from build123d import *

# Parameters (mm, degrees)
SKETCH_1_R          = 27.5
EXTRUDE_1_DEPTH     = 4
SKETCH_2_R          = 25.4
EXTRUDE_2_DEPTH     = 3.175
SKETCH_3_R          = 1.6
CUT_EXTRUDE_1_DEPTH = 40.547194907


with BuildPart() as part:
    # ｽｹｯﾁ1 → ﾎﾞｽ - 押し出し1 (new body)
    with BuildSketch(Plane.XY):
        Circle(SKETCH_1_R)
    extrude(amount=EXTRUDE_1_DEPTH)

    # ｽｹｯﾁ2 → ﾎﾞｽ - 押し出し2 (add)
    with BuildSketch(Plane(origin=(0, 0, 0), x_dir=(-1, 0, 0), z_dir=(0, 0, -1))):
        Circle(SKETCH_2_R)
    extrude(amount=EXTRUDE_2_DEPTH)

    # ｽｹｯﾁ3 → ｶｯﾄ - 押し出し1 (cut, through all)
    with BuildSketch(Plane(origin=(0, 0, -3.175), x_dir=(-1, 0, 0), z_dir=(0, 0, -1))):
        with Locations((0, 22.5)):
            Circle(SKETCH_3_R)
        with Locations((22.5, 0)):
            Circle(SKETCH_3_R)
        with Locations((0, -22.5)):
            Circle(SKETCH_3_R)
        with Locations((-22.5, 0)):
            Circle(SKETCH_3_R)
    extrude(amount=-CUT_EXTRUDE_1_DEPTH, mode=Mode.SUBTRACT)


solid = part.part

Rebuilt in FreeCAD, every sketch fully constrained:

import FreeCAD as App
import Part
import Sketcher
Q = App.Units.Quantity

doc = App.newDocument("Part")
params = doc.addObject("Spreadsheet::Sheet", "Params")
for row, (alias, value) in enumerate([
    ("sketch1_diameter", "55 mm"),
    ("pad1_length", "4 mm"),
    ("sketch2_diameter", "50.8 mm"),
    ("pad2_length", "3.175 mm"),
    ("sketch3_diameter", "3.2 mm"),
], start=1):
    params.set(f"A{row}", alias)
    params.set(f"B{row}", "=" + value)
    params.setAlias(f"B{row}", alias)

body = doc.addObject("PartDesign::Body", "Body")

# Sketch on XY plane
sketch1 = doc.addObject("Sketcher::SketchObject", "Sketch")
body.addObject(sketch1)
sketch1.AttachmentSupport = (doc.XY_Plane, [""])
sketch1.MapMode = "FlatFace"
sketch1.addGeometry(Part.Circle(App.Vector(0, 0, 0), App.Vector(0, 0, 1), 27.5), False)
sketch1.addConstraint(Sketcher.Constraint("Coincident", 0, 3, -1, 1))
sketch1.addConstraint(Sketcher.Constraint("Diameter", 0, Q("55 mm")))
sketch1.setExpression("Constraints[1]", "Params.sketch1_diameter")
pad1 = doc.addObject("PartDesign::Pad", "Pad")
body.addObject(pad1)
pad1.Profile = sketch1
pad1.setExpression("Length", "Params.pad1_length")

# Sketch on XY plane
sketch2 = doc.addObject("Sketcher::SketchObject", "Sketch001")
body.addObject(sketch2)
sketch2.AttachmentSupport = (doc.XY_Plane, [""])
sketch2.MapMode = "FlatFace"
sketch2.addGeometry(Part.Circle(App.Vector(0, 0, 0), App.Vector(0, 0, 1), 25.4), False)
sketch2.addConstraint(Sketcher.Constraint("Coincident", 0, 3, -1, 1))
sketch2.addConstraint(Sketcher.Constraint("Diameter", 0, Q("50.8 mm")))
sketch2.setExpression("Constraints[1]", "Params.sketch2_diameter")
pad2 = doc.addObject("PartDesign::Pad", "Pad001")
body.addObject(pad2)
pad2.Profile = sketch2
pad2.setExpression("Length", "Params.pad2_length")
pad2.Reversed = True

# Sketch on XY plane
sketch3 = doc.addObject("Sketcher::SketchObject", "Sketch002")
body.addObject(sketch3)
sketch3.AttachmentSupport = (doc.XY_Plane, [""])
sketch3.MapMode = "FlatFace"
sketch3.AttachmentOffset = App.Placement(App.Vector(0, 0, -3.175), App.Rotation())
sketch3.addGeometry(Part.Circle(App.Vector(0, 22.5, 0), App.Vector(0, 0, 1), 1.6), False)
sketch3.addGeometry(Part.Circle(App.Vector(-22.5, 0, 0), App.Vector(0, 0, 1), 1.6), False)
sketch3.addGeometry(Part.Circle(App.Vector(0, -22.5, 0), App.Vector(0, 0, 1), 1.6), False)
sketch3.addGeometry(Part.Circle(App.Vector(22.5, 0, 0), App.Vector(0, 0, 1), 1.6), False)
sketch3.addConstraint(Sketcher.Constraint("Equal", 0, 1))
sketch3.addConstraint(Sketcher.Constraint("Equal", 1, 2))
sketch3.addConstraint(Sketcher.Constraint("Equal", 2, 3))
sketch3.addConstraint(Sketcher.Constraint("Symmetric", 0, 3, 2, 3, -1, 1))
sketch3.addConstraint(Sketcher.Constraint("Symmetric", 1, 3, 3, 3, -1, 1))
sketch3.addConstraint(Sketcher.Constraint("PointOnObject", 0, 3, -2))
sketch3.addConstraint(Sketcher.Constraint("PointOnObject", 1, 3, -1))
sketch3.addConstraint(Sketcher.Constraint("Diameter", 0, Q("3.2 mm")))
sketch3.addConstraint(Sketcher.Constraint("DistanceY", 2, 3, 0, 3, Q("45 mm")))
sketch3.addConstraint(Sketcher.Constraint("DistanceX", 1, 3, 3, 3, Q("45 mm")))
sketch3.setExpression("Constraints[7]", "Params.sketch3_diameter")
pocket1 = doc.addObject("PartDesign::Pocket", "Pocket")
body.addObject(pocket1)
pocket1.Profile = sketch3
pocket1.Type = "ThroughAll"
pocket1.Reversed = True

doc.recompute()
